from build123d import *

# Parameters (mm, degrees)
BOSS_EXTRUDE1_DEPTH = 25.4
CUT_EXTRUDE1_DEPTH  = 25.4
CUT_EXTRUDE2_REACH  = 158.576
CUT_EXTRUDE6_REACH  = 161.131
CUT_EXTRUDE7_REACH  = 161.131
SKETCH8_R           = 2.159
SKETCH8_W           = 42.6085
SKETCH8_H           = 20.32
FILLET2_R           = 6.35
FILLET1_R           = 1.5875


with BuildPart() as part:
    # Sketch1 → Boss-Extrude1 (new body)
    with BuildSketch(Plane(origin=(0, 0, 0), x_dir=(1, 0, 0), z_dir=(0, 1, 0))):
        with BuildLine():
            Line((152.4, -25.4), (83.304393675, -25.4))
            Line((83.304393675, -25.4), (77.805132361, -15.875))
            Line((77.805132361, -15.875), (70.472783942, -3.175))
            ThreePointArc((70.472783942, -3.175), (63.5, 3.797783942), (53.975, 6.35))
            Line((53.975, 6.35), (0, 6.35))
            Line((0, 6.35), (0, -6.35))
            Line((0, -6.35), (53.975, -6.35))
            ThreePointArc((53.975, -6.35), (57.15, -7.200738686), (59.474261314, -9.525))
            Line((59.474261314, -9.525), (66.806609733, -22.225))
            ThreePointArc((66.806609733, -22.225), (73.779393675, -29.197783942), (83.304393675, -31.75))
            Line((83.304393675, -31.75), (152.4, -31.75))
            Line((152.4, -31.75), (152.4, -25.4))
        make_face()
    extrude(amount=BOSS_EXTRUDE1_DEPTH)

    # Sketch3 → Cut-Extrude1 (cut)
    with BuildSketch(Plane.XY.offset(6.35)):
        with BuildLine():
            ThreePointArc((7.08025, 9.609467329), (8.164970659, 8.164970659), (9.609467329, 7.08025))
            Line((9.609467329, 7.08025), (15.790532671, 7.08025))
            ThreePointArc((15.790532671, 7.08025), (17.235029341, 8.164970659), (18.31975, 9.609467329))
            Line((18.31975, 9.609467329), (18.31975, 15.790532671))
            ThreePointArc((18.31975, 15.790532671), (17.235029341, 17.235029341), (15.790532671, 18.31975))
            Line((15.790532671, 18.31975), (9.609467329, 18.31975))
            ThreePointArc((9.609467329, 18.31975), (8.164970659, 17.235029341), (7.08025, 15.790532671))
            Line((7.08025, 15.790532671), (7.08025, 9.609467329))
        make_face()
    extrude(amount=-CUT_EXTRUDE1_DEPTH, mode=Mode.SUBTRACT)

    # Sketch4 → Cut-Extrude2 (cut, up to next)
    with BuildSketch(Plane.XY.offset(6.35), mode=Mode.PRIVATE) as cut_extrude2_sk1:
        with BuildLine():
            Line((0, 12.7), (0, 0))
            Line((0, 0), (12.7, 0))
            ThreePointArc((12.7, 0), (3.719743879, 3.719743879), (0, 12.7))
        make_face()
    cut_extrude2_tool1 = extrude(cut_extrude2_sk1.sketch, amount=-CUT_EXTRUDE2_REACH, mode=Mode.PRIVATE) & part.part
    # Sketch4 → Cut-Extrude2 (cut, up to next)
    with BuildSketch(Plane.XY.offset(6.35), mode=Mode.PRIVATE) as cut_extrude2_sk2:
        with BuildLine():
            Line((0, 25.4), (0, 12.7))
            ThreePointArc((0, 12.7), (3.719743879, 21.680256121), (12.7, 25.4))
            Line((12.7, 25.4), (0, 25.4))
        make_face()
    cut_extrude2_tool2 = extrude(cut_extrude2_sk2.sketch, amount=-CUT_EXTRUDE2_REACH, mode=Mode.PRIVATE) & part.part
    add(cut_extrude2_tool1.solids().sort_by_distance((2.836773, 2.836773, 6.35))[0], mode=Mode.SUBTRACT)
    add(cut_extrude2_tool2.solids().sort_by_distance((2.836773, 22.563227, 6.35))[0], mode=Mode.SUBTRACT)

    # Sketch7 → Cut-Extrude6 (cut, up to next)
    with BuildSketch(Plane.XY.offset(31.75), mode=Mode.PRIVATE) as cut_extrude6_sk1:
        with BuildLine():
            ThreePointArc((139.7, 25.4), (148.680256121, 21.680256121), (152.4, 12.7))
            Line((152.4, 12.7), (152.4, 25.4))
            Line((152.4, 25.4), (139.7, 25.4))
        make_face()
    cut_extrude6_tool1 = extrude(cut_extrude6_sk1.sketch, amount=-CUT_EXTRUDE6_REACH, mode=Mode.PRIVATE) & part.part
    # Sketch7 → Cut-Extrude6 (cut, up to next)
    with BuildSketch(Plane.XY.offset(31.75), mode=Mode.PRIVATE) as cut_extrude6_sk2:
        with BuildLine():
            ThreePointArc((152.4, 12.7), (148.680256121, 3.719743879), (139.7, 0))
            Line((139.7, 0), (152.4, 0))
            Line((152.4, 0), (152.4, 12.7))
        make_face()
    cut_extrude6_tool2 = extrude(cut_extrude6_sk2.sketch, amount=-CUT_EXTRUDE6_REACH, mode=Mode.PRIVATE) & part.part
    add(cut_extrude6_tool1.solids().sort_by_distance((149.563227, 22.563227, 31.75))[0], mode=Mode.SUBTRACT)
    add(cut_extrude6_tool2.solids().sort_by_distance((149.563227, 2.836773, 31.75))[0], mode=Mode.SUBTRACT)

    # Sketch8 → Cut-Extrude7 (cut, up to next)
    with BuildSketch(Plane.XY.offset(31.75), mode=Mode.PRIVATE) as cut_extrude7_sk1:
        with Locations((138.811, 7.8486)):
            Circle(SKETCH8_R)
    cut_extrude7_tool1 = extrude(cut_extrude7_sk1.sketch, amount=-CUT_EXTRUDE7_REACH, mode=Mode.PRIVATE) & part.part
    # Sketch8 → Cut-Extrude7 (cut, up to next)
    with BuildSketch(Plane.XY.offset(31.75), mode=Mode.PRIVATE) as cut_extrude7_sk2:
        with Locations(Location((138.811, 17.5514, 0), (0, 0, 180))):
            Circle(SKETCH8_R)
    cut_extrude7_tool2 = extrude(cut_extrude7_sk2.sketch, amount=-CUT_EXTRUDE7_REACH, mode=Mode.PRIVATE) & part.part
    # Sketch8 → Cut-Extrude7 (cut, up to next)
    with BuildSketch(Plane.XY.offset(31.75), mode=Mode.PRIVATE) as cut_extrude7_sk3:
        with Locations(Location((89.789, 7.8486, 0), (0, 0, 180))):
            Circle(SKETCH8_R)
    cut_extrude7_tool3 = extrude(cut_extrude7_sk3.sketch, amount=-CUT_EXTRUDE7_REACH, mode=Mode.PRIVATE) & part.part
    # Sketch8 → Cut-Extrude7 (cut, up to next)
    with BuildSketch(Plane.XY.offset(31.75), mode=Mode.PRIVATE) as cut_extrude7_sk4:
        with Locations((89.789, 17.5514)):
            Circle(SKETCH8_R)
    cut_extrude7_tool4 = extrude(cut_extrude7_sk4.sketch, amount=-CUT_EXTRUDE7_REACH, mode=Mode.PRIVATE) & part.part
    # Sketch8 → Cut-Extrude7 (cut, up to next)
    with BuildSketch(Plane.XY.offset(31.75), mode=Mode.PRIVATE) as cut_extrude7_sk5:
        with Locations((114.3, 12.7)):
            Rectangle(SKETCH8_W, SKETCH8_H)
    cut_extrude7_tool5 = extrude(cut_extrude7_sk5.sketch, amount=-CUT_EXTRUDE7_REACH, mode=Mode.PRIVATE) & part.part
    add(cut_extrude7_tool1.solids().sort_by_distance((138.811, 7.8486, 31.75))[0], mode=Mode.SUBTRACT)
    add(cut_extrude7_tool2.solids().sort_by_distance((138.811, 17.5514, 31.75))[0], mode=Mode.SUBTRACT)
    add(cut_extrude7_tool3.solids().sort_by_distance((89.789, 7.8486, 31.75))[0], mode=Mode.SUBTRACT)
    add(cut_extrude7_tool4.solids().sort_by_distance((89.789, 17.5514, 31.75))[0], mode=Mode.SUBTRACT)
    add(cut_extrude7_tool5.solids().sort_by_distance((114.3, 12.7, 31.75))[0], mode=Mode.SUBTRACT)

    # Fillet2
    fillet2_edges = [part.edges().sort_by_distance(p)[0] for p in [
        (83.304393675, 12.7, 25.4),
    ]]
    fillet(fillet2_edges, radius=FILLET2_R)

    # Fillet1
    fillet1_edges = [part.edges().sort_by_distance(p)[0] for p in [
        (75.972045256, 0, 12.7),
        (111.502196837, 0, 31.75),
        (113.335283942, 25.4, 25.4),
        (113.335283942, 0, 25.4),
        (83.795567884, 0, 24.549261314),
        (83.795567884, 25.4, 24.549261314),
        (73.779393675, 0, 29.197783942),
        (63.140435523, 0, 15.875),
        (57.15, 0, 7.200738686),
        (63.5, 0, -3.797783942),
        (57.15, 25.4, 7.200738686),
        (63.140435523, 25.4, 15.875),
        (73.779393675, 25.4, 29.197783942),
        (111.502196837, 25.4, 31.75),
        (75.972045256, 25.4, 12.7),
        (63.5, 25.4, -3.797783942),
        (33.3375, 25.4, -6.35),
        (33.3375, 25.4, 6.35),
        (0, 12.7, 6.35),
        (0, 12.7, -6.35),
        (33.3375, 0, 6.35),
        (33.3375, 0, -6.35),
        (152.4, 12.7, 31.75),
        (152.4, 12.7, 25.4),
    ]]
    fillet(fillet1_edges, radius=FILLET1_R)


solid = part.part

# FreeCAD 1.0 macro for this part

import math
import FreeCAD as App
import Part
import Sketcher
from FreeCAD import Vector
Q = App.Units.Quantity


def edges_at(feature, points):
    """Names of the edges that pass closest to the given points."""
    edges = feature.Shape.Edges
    near = lambda p: min(range(len(edges)), key=lambda i: edges[i].distToShape(Part.Vertex(*p))[0])
    return sorted({f"Edge{near(p) + 1}" for p in points})


def add_polygon(sketch, points):
    """Adds a closed chain of lines whose ends are joined by coincident constraints."""
    first, n = sketch.GeometryCount, len(points)
    for a, b in zip(points, points[1:] + points[:1]):
        sketch.addGeometry(Part.LineSegment(App.Vector(*a, 0), App.Vector(*b, 0)), False)
    for i in range(n):
        sketch.addConstraint(Sketcher.Constraint("Coincident", first + i, 2, first + (i + 1) % n, 1))

doc = App.newDocument("Part")
params = doc.addObject("Spreadsheet::Sheet", "Params")
for row, (alias, value) in enumerate([
    ("sketch1_radius", "0.75 in"),
    ("sketch1_radius2", "0.25 in"),
    ("sketch1_width", "2.125 in"),
    ("pad1_length", "1 in"),
    ("pocket1_length", "1 in"),
    ("sketch3_radius", "0.5 in"),
    ("sketch4_radius", "0.5 in"),
    ("sketch5_radius", "0.5 in"),
    ("sketch6_radius", "0.5 in"),
    ("sketch7_diameter", "0.17 in"),
    ("sketch8_diameter", "0.17 in"),
    ("sketch9_diameter", "0.17 in"),
    ("sketch10_diameter", "0.17 in"),
    ("sketch11_height", "0.8 in"),
    ("fillet_radius", "0.25 in"),
    ("fillet2_radius", "0.0625 in"),
], start=1):
    params.set(f"A{row}", alias)
    params.set(f"B{row}", "=" + value)
    params.setAlias(f"B{row}", alias)

body = doc.addObject("PartDesign::Body", "Body")

# Sketch on XZ plane
sketch1 = doc.addObject("Sketcher::SketchObject", "Sketch")
body.addObject(sketch1)
sketch1.AttachmentSupport = (doc.XZ_Plane, [""])
sketch1.MapMode = "FlatFace"
sketch1.addGeometry(Part.LineSegment(Vector(152, 25, 0), Vector(83, 25, 0)), False)
sketch1.addGeometry(Part.LineSegment(Vector(83, 25, 0), Vector(78, 16, 0)), False)
sketch1.addGeometry(Part.LineSegment(Vector(78, 16, 0), Vector(70, 3, 0)), False)
sketch1.addGeometry(Part.ArcOfCircle(Part.Circle(Vector(54, 13, 0), Vector(0, 0, 1), 19), math.radians(-90), math.radians(-30)), False)
sketch1.addGeometry(Part.LineSegment(Vector(54, -6, 0), Vector(0, -6, 0)), False)
sketch1.addGeometry(Part.LineSegment(Vector(0, -6, 0), Vector(0, 6, 0)), False)
sketch1.addGeometry(Part.LineSegment(Vector(0, 6, 0), Vector(54, 6, 0)), False)
sketch1.addGeometry(Part.ArcOfCircle(Part.Circle(Vector(54, 13, 0), Vector(0, 0, 1), 6), math.radians(-90), math.radians(-30)), False)
sketch1.addGeometry(Part.LineSegment(Vector(59, 10, 0), Vector(67, 22, 0)), False)
sketch1.addGeometry(Part.ArcOfCircle(Part.Circle(Vector(83, 13, 0), Vector(0, 0, 1), 19), math.radians(90), math.radians(150)), False)
sketch1.addGeometry(Part.LineSegment(Vector(83, 32, 0), Vector(152, 32, 0)), False)
sketch1.addGeometry(Part.LineSegment(Vector(152, 32, 0), Vector(152, 25, 0)), False)
sketch1.addConstraint(Sketcher.Constraint("Coincident", 0, 2, 1, 1))
sketch1.addConstraint(Sketcher.Constraint("Coincident", 1, 2, 2, 1))
sketch1.addConstraint(Sketcher.Constraint("Tangent", 2, 2, 3, 2))
sketch1.addConstraint(Sketcher.Constraint("Tangent", 3, 1, 4, 1))
sketch1.addConstraint(Sketcher.Constraint("Coincident", 4, 2, 5, 1))
sketch1.addConstraint(Sketcher.Constraint("Coincident", 5, 2, 6, 1))
sketch1.addConstraint(Sketcher.Constraint("Tangent", 6, 2, 7, 1))
sketch1.addConstraint(Sketcher.Constraint("Tangent", 7, 2, 8, 1))
sketch1.addConstraint(Sketcher.Constraint("Tangent", 8, 2, 9, 2))
sketch1.addConstraint(Sketcher.Constraint("Tangent", 9, 1, 10, 1))
sketch1.addConstraint(Sketcher.Constraint("Coincident", 10, 2, 11, 1))
sketch1.addConstraint(Sketcher.Constraint("Coincident", 11, 2, 0, 1))
sketch1.addConstraint(Sketcher.Constraint("Horizontal", 0))
sketch1.addConstraint(Sketcher.Constraint("Horizontal", 4))
sketch1.addConstraint(Sketcher.Constraint("Vertical", 5))
sketch1.addConstraint(Sketcher.Constraint("Horizontal", 6))
sketch1.addConstraint(Sketcher.Constraint("Horizontal", 10))
sketch1.addConstraint(Sketcher.Constraint("Vertical", 11))
sketch1.addConstraint(Sketcher.Constraint("Coincident", 7, 3, 3, 3))
sketch1.addConstraint(Sketcher.Constraint("Equal", 3, 9))
sketch1.addConstraint(Sketcher.Constraint("Symmetric", 4, 2, 5, 2, -1, 1))
sketch1.addConstraint(Sketcher.Constraint("Parallel", 1, 2))
sketch1.addConstraint(Sketcher.Constraint("Parallel", 2, 8))
sketch1.addConstraint(Sketcher.Constraint("Horizontal", 7, 3, 9, 3))
sketch1.addConstraint(Sketcher.Constraint("Vertical", 9, 3, 0, 2))
sketch1.addConstraint(Sketcher.Constraint("Equal", 2, 8))
sketch1.addConstraint(Sketcher.Constraint("Radius", 3, Q("0.75 in")))
sketch1.addConstraint(Sketcher.Constraint("Radius", 7, Q("0.25 in")))
sketch1.addConstraint(Sketcher.Constraint("DistanceY", -1, 1, 0, 2, Q("1 in")))
sketch1.addConstraint(Sketcher.Constraint("DistanceX", -1, 1, 10, 2, Q("6 in")))
sketch1.addConstraint(Sketcher.Constraint("DistanceX", 4, 2, 4, 1, Q("2.125 in")))
sketch1.setExpression("Constraints[26]", "Params.sketch1_radius")
sketch1.setExpression("Constraints[27]", "Params.sketch1_radius2")
sketch1.setExpression("Constraints[30]", "Params.sketch1_width")
pad1 = doc.addObject("PartDesign::Pad", "Pad")
body.addObject(pad1)
pad1.Profile = sketch1
pad1.setExpression("Length", "Params.pad1_length")
pad1.Reversed = True

# Sketch on XY plane
sketch2 = doc.addObject("Sketcher::SketchObject", "Sketch001")
body.addObject(sketch2)
sketch2.AttachmentSupport = (doc.XY_Plane, [""])
sketch2.MapMode = "FlatFace"
sketch2.AttachmentOffset = App.Placement(Vector(0, 0, 0.25 * 25.4), App.Rotation())
sketch2.addGeometry(Part.ArcOfCircle(Part.Circle(Vector(12.7, 12.7, 0), Vector(0, 0, 1), 6.4), math.radians(-151), math.radians(-119)), False)
sketch2.addGeometry(Part.LineSegment(Vector(9.6, 7.1, 0), Vector(15.8, 7.1, 0)), False)
sketch2.addGeometry(Part.ArcOfCircle(Part.Circle(Vector(12.7, 12.7, 0), Vector(0, 0, 1), 6.4), math.radians(-61), math.radians(-29)), False)
sketch2.addGeometry(Part.LineSegment(Vector(18.3, 9.6, 0), Vector(18.3, 15.8, 0)), False)
sketch2.addGeometry(Part.ArcOfCircle(Part.Circle(Vector(12.7, 12.7, 0), Vector(0, 0, 1), 6.4), math.radians(29), math.radians(61)), False)
sketch2.addGeometry(Part.LineSegment(Vector(15.8, 18.3, 0), Vector(9.6, 18.3, 0)), False)
sketch2.addGeometry(Part.ArcOfCircle(Part.Circle(Vector(12.7, 12.7, 0), Vector(0, 0, 1), 6.4), math.radians(119), math.radians(151)), False)
sketch2.addGeometry(Part.LineSegment(Vector(7.1, 15.8, 0), Vector(7.1, 9.6, 0)), False)
sketch2.addConstraint(Sketcher.Constraint("Coincident", 0, 2, 1, 1))
sketch2.addConstraint(Sketcher.Constraint("Coincident", 1, 2, 2, 1))
sketch2.addConstraint(Sketcher.Constraint("Coincident", 2, 2, 3, 1))
sketch2.addConstraint(Sketcher.Constraint("Coincident", 3, 2, 4, 1))
sketch2.addConstraint(Sketcher.Constraint("Coincident", 4, 2, 5, 1))
sketch2.addConstraint(Sketcher.Constraint("Coincident", 5, 2, 6, 1))
sketch2.addConstraint(Sketcher.Constraint("Coincident", 6, 2, 7, 1))
sketch2.addConstraint(Sketcher.Constraint("Coincident", 7, 2, 0, 1))
sketch2.addConstraint(Sketcher.Constraint("Horizontal", 1))
sketch2.addConstraint(Sketcher.Constraint("Vertical", 3))
sketch2.addConstraint(Sketcher.Constraint("Horizontal", 5))
sketch2.addConstraint(Sketcher.Constraint("Vertical", 7))
sketch2.addConstraint(Sketcher.Constraint("Coincident", 2, 3, 0, 3))
sketch2.addConstraint(Sketcher.Constraint("Coincident", 4, 3, 0, 3))
sketch2.addConstraint(Sketcher.Constraint("Coincident", 6, 3, 0, 3))
sketch2.addConstraint(Sketcher.Constraint("Equal", 0, 2))
sketch2.addConstraint(Sketcher.Constraint("Equal", 2, 4))
sketch2.addConstraint(Sketcher.Constraint("Equal", 4, 6))
sketch2.addConstraint(Sketcher.Constraint("Horizontal", 3, 2, 6, 2))
sketch2.addConstraint(Sketcher.Constraint("Vertical", 1, 2, 4, 2))
sketch2.addConstraint(Sketcher.Constraint("Equal", 5, 3))
sketch2.addConstraint(Sketcher.Constraint("DistanceX", -1, 1, 0, 3, Q("0.5 in")))
sketch2.addConstraint(Sketcher.Constraint("DistanceY", -1, 1, 0, 3, Q("0.5 in")))
sketch2.addConstraint(Sketcher.Constraint("Radius", 0, Q("0.2525 in")))
sketch2.addConstraint(Sketcher.Constraint("DistanceX", 1, 1, 1, 2, 6.181065))
pocket1 = doc.addObject("PartDesign::Pocket", "Pocket")
body.addObject(pocket1)
pocket1.Profile = sketch2
pocket1.setExpression("Length", "Params.pocket1_length")

# Sketch on XY plane
sketch3 = doc.addObject("Sketcher::SketchObject", "Sketch002")
body.addObject(sketch3)
sketch3.AttachmentSupport = (doc.XY_Plane, [""])
sketch3.MapMode = "FlatFace"
sketch3.AttachmentOffset = App.Placement(Vector(0, 0, 0.25 * 25.4), App.Rotation())
sketch3.addGeometry(Part.LineSegment(Vector(0, 13, 0), Vector(0, 0, 0)), False)
sketch3.addGeometry(Part.LineSegment(Vector(0, 0, 0), Vector(13, 0, 0)), False)
sketch3.addGeometry(Part.ArcOfCircle(Part.Circle(Vector(13, 13, 0), Vector(0, 0, 1), 13), math.radians(180), math.radians(270)), False)
sketch3.addConstraint(Sketcher.Constraint("Coincident", 0, 2, 1, 1))
sketch3.addConstraint(Sketcher.Constraint("Tangent", 1, 2, 2, 2))
sketch3.addConstraint(Sketcher.Constraint("Tangent", 2, 1, 0, 1))
sketch3.addConstraint(Sketcher.Constraint("Vertical", 0))
sketch3.addConstraint(Sketcher.Constraint("Horizontal", 1))
sketch3.addConstraint(Sketcher.Constraint("Coincident", 0, 2, -1, 1))
sketch3.addConstraint(Sketcher.Constraint("Radius", 2, Q("0.5 in")))
sketch3.setExpression("Constraints[6]", "Params.sketch3_radius")
pocket2 = doc.addObject("PartDesign::Pocket", "Pocket001")
body.addObject(pocket2)
pocket2.Profile = sketch3
pocket2.Type = "UpToFirst"

# Sketch on XY plane
sketch4 = doc.addObject("Sketcher::SketchObject", "Sketch003")
body.addObject(sketch4)
sketch4.AttachmentSupport = (doc.XY_Plane, [""])
sketch4.MapMode = "FlatFace"
sketch4.AttachmentOffset = App.Placement(Vector(0, 0, 0.25 * 25.4), App.Rotation())
sketch4.addGeometry(Part.LineSegment(Vector(0, 25, 0), Vector(0, 13, 0)), False)
sketch4.addGeometry(Part.ArcOfCircle(Part.Circle(Vector(13, 13, 0), Vector(0, 0, 1), 13), math.radians(90), math.radians(180)), False)
sketch4.addGeometry(Part.LineSegment(Vector(13, 25, 0), Vector(0, 25, 0)), False)
sketch4.addConstraint(Sketcher.Constraint("Tangent", 0, 2, 1, 2))
sketch4.addConstraint(Sketcher.Constraint("Tangent", 1, 1, 2, 1))
sketch4.addConstraint(Sketcher.Constraint("Coincident", 2, 2, 0, 1))
sketch4.addConstraint(Sketcher.Constraint("Vertical", 0))
sketch4.addConstraint(Sketcher.Constraint("Horizontal", 2))
sketch4.addConstraint(Sketcher.Constraint("PointOnObject", 0, 2, -2))
sketch4.addConstraint(Sketcher.Constraint("Radius", 1, Q("0.5 in")))
sketch4.addConstraint(Sketcher.Constraint("DistanceY", -1, 1, 1, 1, Q("1 in")))
sketch4.setExpression("Constraints[6]", "Params.sketch4_radius")
pocket3 = doc.addObject("PartDesign::Pocket", "Pocket002")
body.addObject(pocket3)
pocket3.Profile = sketch4
pocket3.Type = "UpToFirst"

# Sketch on XY plane
sketch5 = doc.addObject("Sketcher::SketchObject", "Sketch004")
body.addObject(sketch5)
sketch5.AttachmentSupport = (doc.XY_Plane, [""])
sketch5.MapMode = "FlatFace"
sketch5.AttachmentOffset = App.Placement(Vector(0, 0, 1.25 * 25.4), App.Rotation())
sketch5.addGeometry(Part.ArcOfCircle(Part.Circle(Vector(140, 13, 0), Vector(0, 0, 1), 13), math.radians(0), math.radians(90)), False)
sketch5.addGeometry(Part.LineSegment(Vector(152, 13, 0), Vector(152, 25, 0)), False)
sketch5.addGeometry(Part.LineSegment(Vector(152, 25, 0), Vector(140, 25, 0)), False)
sketch5.addConstraint(Sketcher.Constraint("Tangent", 0, 1, 1, 1))
sketch5.addConstraint(Sketcher.Constraint("Coincident", 1, 2, 2, 1))
sketch5.addConstraint(Sketcher.Constraint("Tangent", 2, 2, 0, 2))
sketch5.addConstraint(Sketcher.Constraint("Vertical", 1))
sketch5.addConstraint(Sketcher.Constraint("Horizontal", 2))
sketch5.addConstraint(Sketcher.Constraint("Radius", 0, Q("0.5 in")))
sketch5.addConstraint(Sketcher.Constraint("DistanceX", -1, 1, 0, 1, Q("6 in")))
sketch5.addConstraint(Sketcher.Constraint("DistanceY", -1, 1, 1, 2, Q("1 in")))
sketch5.setExpression("Constraints[5]", "Params.sketch5_radius")
pocket4 = doc.addObject("PartDesign::Pocket", "Pocket003")
body.addObject(pocket4)
pocket4.Profile = sketch5
pocket4.Type = "UpToFirst"

# Sketch on XY plane
sketch6 = doc.addObject("Sketcher::SketchObject", "Sketch005")
body.addObject(sketch6)
sketch6.AttachmentSupport = (doc.XY_Plane, [""])
sketch6.MapMode = "FlatFace"
sketch6.AttachmentOffset = App.Placement(Vector(0, 0, 1.25 * 25.4), App.Rotation())
sketch6.addGeometry(Part.ArcOfCircle(Part.Circle(Vector(140, 13, 0), Vector(0, 0, 1), 13), math.radians(-90), math.radians(0)), False)
sketch6.addGeometry(Part.LineSegment(Vector(140, 0, 0), Vector(152, 0, 0)), False)
sketch6.addGeometry(Part.LineSegment(Vector(152, 0, 0), Vector(152, 13, 0)), False)
sketch6.addConstraint(Sketcher.Constraint("Tangent", 0, 1, 1, 1))
sketch6.addConstraint(Sketcher.Constraint("Coincident", 1, 2, 2, 1))
sketch6.addConstraint(Sketcher.Constraint("Tangent", 2, 2, 0, 2))
sketch6.addConstraint(Sketcher.Constraint("Horizontal", 1))
sketch6.addConstraint(Sketcher.Constraint("Vertical", 2))
sketch6.addConstraint(Sketcher.Constraint("PointOnObject", 0, 1, -1))
sketch6.addConstraint(Sketcher.Constraint("Radius", 0, Q("0.5 in")))
sketch6.addConstraint(Sketcher.Constraint("DistanceX", -1, 1, 1, 2, Q("6 in")))
sketch6.setExpression("Constraints[6]", "Params.sketch6_radius")
pocket5 = doc.addObject("PartDesign::Pocket", "Pocket004")
body.addObject(pocket5)
pocket5.Profile = sketch6
pocket5.Type = "UpToFirst"

# Sketch on XY plane
sketch7 = doc.addObject("Sketcher::SketchObject", "Sketch006")
body.addObject(sketch7)
sketch7.AttachmentSupport = (doc.XY_Plane, [""])
sketch7.MapMode = "FlatFace"
sketch7.AttachmentOffset = App.Placement(Vector(0, 0, 1.25 * 25.4), App.Rotation())
sketch7.addGeometry(Part.Circle(Vector(138.8, 7.8, 0), Vector(0, 0, 1), 2.2), False)
sketch7.addConstraint(Sketcher.Constraint("Diameter", 0, Q("0.17 in")))
sketch7.addConstraint(Sketcher.Constraint("DistanceX", -1, 1, 0, 3, Q("5.465 in")))
sketch7.addConstraint(Sketcher.Constraint("DistanceY", -1, 1, 0, 3, Q("0.309 in")))
sketch7.setExpression("Constraints[0]", "Params.sketch7_diameter")
pocket6 = doc.addObject("PartDesign::Pocket", "Pocket005")
body.addObject(pocket6)
pocket6.Profile = sketch7
pocket6.Type = "UpToFirst"

# Sketch on XY plane
sketch8 = doc.addObject("Sketcher::SketchObject", "Sketch007")
body.addObject(sketch8)
sketch8.AttachmentSupport = (doc.XY_Plane, [""])
sketch8.MapMode = "FlatFace"
sketch8.AttachmentOffset = App.Placement(Vector(0, 0, 1.25 * 25.4), App.Rotation())
sketch8.addGeometry(Part.Circle(Vector(138.8, 17.6, 0), Vector(0, 0, 1), 2.2), False)
sketch8.addConstraint(Sketcher.Constraint("Diameter", 0, Q("0.17 in")))
sketch8.addConstraint(Sketcher.Constraint("DistanceX", -1, 1, 0, 3, Q("5.465 in")))
sketch8.addConstraint(Sketcher.Constraint("DistanceY", -1, 1, 0, 3, Q("0.691 in")))
sketch8.setExpression("Constraints[0]", "Params.sketch8_diameter")
pocket7 = doc.addObject("PartDesign::Pocket", "Pocket006")
body.addObject(pocket7)
pocket7.Profile = sketch8
pocket7.Type = "UpToFirst"

# Sketch on XY plane
sketch9 = doc.addObject("Sketcher::SketchObject", "Sketch008")
body.addObject(sketch9)
sketch9.AttachmentSupport = (doc.XY_Plane, [""])
sketch9.MapMode = "FlatFace"
sketch9.AttachmentOffset = App.Placement(Vector(0, 0, 1.25 * 25.4), App.Rotation())
sketch9.addGeometry(Part.Circle(Vector(89.8, 7.8, 0), Vector(0, 0, 1), 2.2), False)
sketch9.addConstraint(Sketcher.Constraint("Diameter", 0, Q("0.17 in")))
sketch9.addConstraint(Sketcher.Constraint("DistanceX", -1, 1, 0, 3, Q("3.535 in")))
sketch9.addConstraint(Sketcher.Constraint("DistanceY", -1, 1, 0, 3, Q("0.309 in")))
sketch9.setExpression("Constraints[0]", "Params.sketch9_diameter")
pocket8 = doc.addObject("PartDesign::Pocket", "Pocket007")
body.addObject(pocket8)
pocket8.Profile = sketch9
pocket8.Type = "UpToFirst"

# Sketch on XY plane
sketch10 = doc.addObject("Sketcher::SketchObject", "Sketch009")
body.addObject(sketch10)
sketch10.AttachmentSupport = (doc.XY_Plane, [""])
sketch10.MapMode = "FlatFace"
sketch10.AttachmentOffset = App.Placement(Vector(0, 0, 1.25 * 25.4), App.Rotation())
sketch10.addGeometry(Part.Circle(Vector(89.8, 17.6, 0), Vector(0, 0, 1), 2.2), False)
sketch10.addConstraint(Sketcher.Constraint("Diameter", 0, Q("0.17 in")))
sketch10.addConstraint(Sketcher.Constraint("DistanceX", -1, 1, 0, 3, Q("3.535 in")))
sketch10.addConstraint(Sketcher.Constraint("DistanceY", -1, 1, 0, 3, Q("0.691 in")))
sketch10.setExpression("Constraints[0]", "Params.sketch10_diameter")
pocket9 = doc.addObject("PartDesign::Pocket", "Pocket008")
body.addObject(pocket9)
pocket9.Profile = sketch10
pocket9.Type = "UpToFirst"

# Sketch on XY plane
sketch11 = doc.addObject("Sketcher::SketchObject", "Sketch010")
body.addObject(sketch11)
sketch11.AttachmentSupport = (doc.XY_Plane, [""])
sketch11.MapMode = "FlatFace"
sketch11.AttachmentOffset = App.Placement(Vector(0, 0, 1.25 * 25.4), App.Rotation())
add_polygon(sketch11, [(93, 23), (93, 3), (136, 3), (136, 23)])  # lines 0-3
sketch11.addConstraint(Sketcher.Constraint("Vertical", 0))
sketch11.addConstraint(Sketcher.Constraint("Horizontal", 1))
sketch11.addConstraint(Sketcher.Constraint("Vertical", 2))
sketch11.addConstraint(Sketcher.Constraint("Horizontal", 3))
sketch11.addConstraint(Sketcher.Constraint("DistanceY", 0, 2, 0, 1, Q("0.8 in")))
sketch11.addConstraint(Sketcher.Constraint("DistanceY", -1, 1, 0, 2, Q("0.1 in")))
sketch11.addConstraint(Sketcher.Constraint("DistanceX", 1, 1, 1, 2, Q("1.6775 in")))
sketch11.addConstraint(Sketcher.Constraint("DistanceX", -1, 1, 0, 2, 92.99575))
sketch11.setExpression("Constraints[8]", "Params.sketch11_height")
pocket10 = doc.addObject("PartDesign::Pocket", "Pocket009")
body.addObject(pocket10)
pocket10.Profile = sketch11
pocket10.Type = "UpToFirst"
doc.recompute()

fillet = doc.addObject("PartDesign::Fillet", "Fillet")
body.addObject(fillet)
fillet.Base = (pocket10, edges_at(pocket10, [(83.304, 12.7, 25.4)]))
fillet.setExpression("Radius", "Params.fillet_radius")
doc.recompute()

fillet2 = doc.addObject("PartDesign::Fillet", "Fillet001")
body.addObject(fillet2)
fillet2.Base = (fillet, edges_at(fillet, [
    (74.139, 0, 9.525),
    (111.502, 0, 31.75),
    (113.335, 25.4, 25.4),
    (113.335, 0, 25.4),
    (83.796, 0, 24.549),
    (83.796, 25.4, 24.549),
    (73.779, 0, 29.198),
    (63.14, 0, 15.875),
    (57.15, 0, 7.201),
    (63.5, 0, -3.798),
    (57.15, 25.4, 7.201),
    (63.14, 25.4, 15.875),
    (73.779, 25.4, 29.198),
    (111.502, 25.4, 31.75),
    (74.139, 25.4, 9.525),
    (63.5, 25.4, -3.798),
    (33.337, 25.4, -6.35),
    (33.337, 25.4, 6.35),
    (3.72, 3.72, 6.35),
    (3.72, 3.72, -6.35),
    (33.337, 0, 6.35),
    (33.337, 0, -6.35),
    (148.68, 3.72, 31.75),
    (148.68, 3.72, 25.4),
]))
fillet2.setExpression("Radius", "Params.fillet2_radius")

doc.recompute()
